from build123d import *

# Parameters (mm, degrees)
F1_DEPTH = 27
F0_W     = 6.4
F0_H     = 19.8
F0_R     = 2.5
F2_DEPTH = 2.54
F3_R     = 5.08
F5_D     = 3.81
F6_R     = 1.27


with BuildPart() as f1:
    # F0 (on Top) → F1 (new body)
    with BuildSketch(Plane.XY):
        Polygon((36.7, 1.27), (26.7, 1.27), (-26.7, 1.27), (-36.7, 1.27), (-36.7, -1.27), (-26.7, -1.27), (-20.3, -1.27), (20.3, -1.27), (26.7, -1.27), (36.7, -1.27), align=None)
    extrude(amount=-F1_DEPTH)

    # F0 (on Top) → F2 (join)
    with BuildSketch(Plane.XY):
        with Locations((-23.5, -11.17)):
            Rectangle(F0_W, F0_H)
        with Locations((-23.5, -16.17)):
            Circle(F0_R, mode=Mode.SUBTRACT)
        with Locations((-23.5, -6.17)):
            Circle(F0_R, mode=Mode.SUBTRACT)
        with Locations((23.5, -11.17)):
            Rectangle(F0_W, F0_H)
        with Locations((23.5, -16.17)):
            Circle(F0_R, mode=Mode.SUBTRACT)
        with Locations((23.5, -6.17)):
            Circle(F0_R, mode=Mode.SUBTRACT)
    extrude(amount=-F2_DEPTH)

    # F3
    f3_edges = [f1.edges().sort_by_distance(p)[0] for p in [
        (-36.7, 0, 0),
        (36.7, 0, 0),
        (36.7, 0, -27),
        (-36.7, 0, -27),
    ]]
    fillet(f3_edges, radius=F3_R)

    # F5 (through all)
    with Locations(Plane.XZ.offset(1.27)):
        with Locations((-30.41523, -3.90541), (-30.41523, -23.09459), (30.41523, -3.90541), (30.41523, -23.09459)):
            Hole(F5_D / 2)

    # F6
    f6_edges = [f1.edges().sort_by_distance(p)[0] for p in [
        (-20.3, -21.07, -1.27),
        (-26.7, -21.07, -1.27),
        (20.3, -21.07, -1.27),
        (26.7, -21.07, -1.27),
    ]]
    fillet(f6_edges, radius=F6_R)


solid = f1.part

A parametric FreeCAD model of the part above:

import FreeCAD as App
import Part
import Sketcher

V = App.Vector


def edges_at(feature, points):
    """Names of the edges that pass closest to the given points."""
    edges = feature.Shape.Edges
    near = lambda p: min(range(len(edges)), key=lambda i: edges[i].distToShape(Part.Vertex(*p))[0])
    return sorted({f"Edge{near(p) + 1}" for p in points})


def add_polygon(sketch, points):
    """Adds a closed chain of lines whose ends are joined by coincident constraints."""
    first, n = sketch.GeometryCount, len(points)
    for a, b in zip(points, points[1:] + points[:1]):
        sketch.addGeometry(Part.LineSegment(App.Vector(*a, 0), App.Vector(*b, 0)), False)
    for i in range(n):
        sketch.addConstraint(Sketcher.Constraint("Coincident", first + i, 2, first + (i + 1) % n, 1))

doc = App.newDocument("Part")
body = doc.addObject("PartDesign::Body", "Body")

sketch1 = body.newObject("Sketcher::SketchObject", "Sketch")
sketch1.AttachmentSupport = (doc.getObject("XY_Plane"), [""])
sketch1.MapMode = "FlatFace"
add_polygon(sketch1, [(36.7, 1.27), (-36.7, 1.27), (-36.7, -1.27), (36.7, -1.27)])
sketch1.addConstraint(Sketcher.Constraint("Horizontal", 0))
sketch1.addConstraint(Sketcher.Constraint("Vertical", 1))
sketch1.addConstraint(Sketcher.Constraint("Horizontal", 2))
sketch1.addConstraint(Sketcher.Constraint("Vertical", 3))
sketch1.addConstraint(Sketcher.Constraint("Symmetric", 0, 2, 2, 2, -1, 1))
sketch1.addConstraint(Sketcher.Constraint("DistanceX", 0, 2, 0, 1, 73.4))
sketch1.addConstraint(Sketcher.Constraint("DistanceY", 1, 2, 1, 1, 2.54))
pad1 = body.newObject("PartDesign::Pad", "Pad")
pad1.Profile = sketch1
pad1.Length = 27
pad1.Reversed = True

sketch2 = body.newObject("Sketcher::SketchObject", "Sketch001")
sketch2.AttachmentSupport = (doc.getObject("XY_Plane"), [""])
sketch2.MapMode = "FlatFace"
add_polygon(sketch2, [(-26.7, -1.27), (-26.7, -21.07), (-20.3, -21.07), (-20.3, -1.27)])
sketch2.addGeometry(Part.Circle(V(-23.5, -16.17, 0), V(0, 0, 1), 2.5), False)
sketch2.addGeometry(Part.Circle(V(-23.5, -6.17, 0), V(0, 0, 1), 2.5), False)
add_polygon(sketch2, [(20.3, -1.27), (20.3, -21.07), (26.7, -21.07), (26.7, -1.27)])
sketch2.addGeometry(Part.Circle(V(23.5, -16.17, 0), V(0, 0, 1), 2.5), False)
sketch2.addGeometry(Part.Circle(V(23.5, -6.17, 0), V(0, 0, 1), 2.5), False)
sketch2.addConstraint(Sketcher.Constraint("Vertical", 0))
sketch2.addConstraint(Sketcher.Constraint("Horizontal", 1))
sketch2.addConstraint(Sketcher.Constraint("Vertical", 2))
sketch2.addConstraint(Sketcher.Constraint("Horizontal", 3))
sketch2.addConstraint(Sketcher.Constraint("Vertical", 6))
sketch2.addConstraint(Sketcher.Constraint("Horizontal", 7))
sketch2.addConstraint(Sketcher.Constraint("Vertical", 8))
sketch2.addConstraint(Sketcher.Constraint("Horizontal", 9))
sketch2.addConstraint(Sketcher.Constraint("Equal", 4, 5))
sketch2.addConstraint(Sketcher.Constraint("Equal", 5, 10))
sketch2.addConstraint(Sketcher.Constraint("Equal", 10, 11))
sketch2.addConstraint(Sketcher.Constraint("Symmetric", 4, 3, 10, 3, -2))
sketch2.addConstraint(Sketcher.Constraint("Symmetric", 5, 3, 11, 3, -2))
sketch2.addConstraint(Sketcher.Constraint("Symmetric", 1, 2, 6, 2, -2))
sketch2.addConstraint(Sketcher.Constraint("Symmetric", 3, 2, 8, 2, -2))
sketch2.addConstraint(Sketcher.Constraint("Vertical", 4, 3, 5, 3))
sketch2.addConstraint(Sketcher.Constraint("Diameter", 4, 5.0))
sketch2.addConstraint(Sketcher.Constraint("DistanceX", 1, 1, 1, 2, 6.4))
sketch2.addConstraint(Sketcher.Constraint("DistanceY", 0, 2, 0, 1, 19.8))
sketch2.addConstraint(Sketcher.Constraint("DistanceY", 4, 3, 5, 3, 10.0))
sketch2.addConstraint(Sketcher.Constraint("DistanceX", 4, 3, 10, 3, 47.0))
sketch2.addConstraint(Sketcher.Constraint("DistanceX", 1, 2, 7, 2, 47.0))
sketch2.addConstraint(Sketcher.Constraint("DistanceY", 0, 2, 4, 3, 4.9))
sketch2.addConstraint(Sketcher.Constraint("DistanceY", 4, 3, -1, 1, 16.17))
pad2 = body.newObject("PartDesign::Pad", "Pad001")
pad2.Profile = sketch2
pad2.Length = 2.54
pad2.Reversed = True
doc.recompute()

fillet = body.newObject("PartDesign::Fillet", "Fillet")
fillet.Base = (pad2, edges_at(pad2, [
    (-36.7, 0, 0),
    (36.7, 0, 0),
    (36.7, 0, -27),
    (-36.7, 0, -27),
]))
fillet.Radius = 5.08

sketch3 = body.newObject("Sketcher::SketchObject", "Sketch002")
sketch3.AttachmentSupport = (doc.getObject("XZ_Plane"), [""])
sketch3.MapMode = "FlatFace"
sketch3.AttachmentOffset = App.Placement(V(0, 0, 1.27), App.Rotation())
sketch3.addGeometry(Part.Circle(V(-30.41523, -3.90541, 0), V(0, 0, 1), 1.905), False)
sketch3.addGeometry(Part.Circle(V(-30.41523, -23.09459, 0), V(0, 0, 1), 1.905), False)
sketch3.addGeometry(Part.Circle(V(30.41523, -3.90541, 0), V(0, 0, 1), 1.905), False)
sketch3.addGeometry(Part.Circle(V(30.41523, -23.09459, 0), V(0, 0, 1), 1.905), False)
sketch3.addConstraint(Sketcher.Constraint("Equal", 0, 1))
sketch3.addConstraint(Sketcher.Constraint("Equal", 1, 2))
sketch3.addConstraint(Sketcher.Constraint("Equal", 2, 3))
sketch3.addConstraint(Sketcher.Constraint("Symmetric", 0, 3, 2, 3, -2))
sketch3.addConstraint(Sketcher.Constraint("Symmetric", 1, 3, 3, 3, -2))
sketch3.addConstraint(Sketcher.Constraint("Vertical", 0, 3, 1, 3))
sketch3.addConstraint(Sketcher.Constraint("Diameter", 0, 3.81))
sketch3.addConstraint(Sketcher.Constraint("DistanceX", 0, 3, -1, 1, 30.41523))
sketch3.addConstraint(Sketcher.Constraint("DistanceY", 0, 3, -1, 1, 3.90541))
sketch3.addConstraint(Sketcher.Constraint("DistanceY", 1, 3, -1, 1, 23.09459))
doc.recompute()
hole = body.newObject("PartDesign::Hole", "Hole")
hole.Profile = sketch3
hole.ThreadType = "None"
hole.Diameter = 3.81
hole.DepthType = "ThroughAll"
doc.recompute()

fillet2 = body.newObject("PartDesign::Fillet", "Fillet001")
fillet2.Base = (hole, edges_at(hole, [
    (-20.3, -21.07, -1.27),
    (-26.7, -21.07, -1.27),
    (20.3, -21.07, -1.27),
    (26.7, -21.07, -1.27),
]))
fillet2.Radius = 1.27

doc.recompute()
